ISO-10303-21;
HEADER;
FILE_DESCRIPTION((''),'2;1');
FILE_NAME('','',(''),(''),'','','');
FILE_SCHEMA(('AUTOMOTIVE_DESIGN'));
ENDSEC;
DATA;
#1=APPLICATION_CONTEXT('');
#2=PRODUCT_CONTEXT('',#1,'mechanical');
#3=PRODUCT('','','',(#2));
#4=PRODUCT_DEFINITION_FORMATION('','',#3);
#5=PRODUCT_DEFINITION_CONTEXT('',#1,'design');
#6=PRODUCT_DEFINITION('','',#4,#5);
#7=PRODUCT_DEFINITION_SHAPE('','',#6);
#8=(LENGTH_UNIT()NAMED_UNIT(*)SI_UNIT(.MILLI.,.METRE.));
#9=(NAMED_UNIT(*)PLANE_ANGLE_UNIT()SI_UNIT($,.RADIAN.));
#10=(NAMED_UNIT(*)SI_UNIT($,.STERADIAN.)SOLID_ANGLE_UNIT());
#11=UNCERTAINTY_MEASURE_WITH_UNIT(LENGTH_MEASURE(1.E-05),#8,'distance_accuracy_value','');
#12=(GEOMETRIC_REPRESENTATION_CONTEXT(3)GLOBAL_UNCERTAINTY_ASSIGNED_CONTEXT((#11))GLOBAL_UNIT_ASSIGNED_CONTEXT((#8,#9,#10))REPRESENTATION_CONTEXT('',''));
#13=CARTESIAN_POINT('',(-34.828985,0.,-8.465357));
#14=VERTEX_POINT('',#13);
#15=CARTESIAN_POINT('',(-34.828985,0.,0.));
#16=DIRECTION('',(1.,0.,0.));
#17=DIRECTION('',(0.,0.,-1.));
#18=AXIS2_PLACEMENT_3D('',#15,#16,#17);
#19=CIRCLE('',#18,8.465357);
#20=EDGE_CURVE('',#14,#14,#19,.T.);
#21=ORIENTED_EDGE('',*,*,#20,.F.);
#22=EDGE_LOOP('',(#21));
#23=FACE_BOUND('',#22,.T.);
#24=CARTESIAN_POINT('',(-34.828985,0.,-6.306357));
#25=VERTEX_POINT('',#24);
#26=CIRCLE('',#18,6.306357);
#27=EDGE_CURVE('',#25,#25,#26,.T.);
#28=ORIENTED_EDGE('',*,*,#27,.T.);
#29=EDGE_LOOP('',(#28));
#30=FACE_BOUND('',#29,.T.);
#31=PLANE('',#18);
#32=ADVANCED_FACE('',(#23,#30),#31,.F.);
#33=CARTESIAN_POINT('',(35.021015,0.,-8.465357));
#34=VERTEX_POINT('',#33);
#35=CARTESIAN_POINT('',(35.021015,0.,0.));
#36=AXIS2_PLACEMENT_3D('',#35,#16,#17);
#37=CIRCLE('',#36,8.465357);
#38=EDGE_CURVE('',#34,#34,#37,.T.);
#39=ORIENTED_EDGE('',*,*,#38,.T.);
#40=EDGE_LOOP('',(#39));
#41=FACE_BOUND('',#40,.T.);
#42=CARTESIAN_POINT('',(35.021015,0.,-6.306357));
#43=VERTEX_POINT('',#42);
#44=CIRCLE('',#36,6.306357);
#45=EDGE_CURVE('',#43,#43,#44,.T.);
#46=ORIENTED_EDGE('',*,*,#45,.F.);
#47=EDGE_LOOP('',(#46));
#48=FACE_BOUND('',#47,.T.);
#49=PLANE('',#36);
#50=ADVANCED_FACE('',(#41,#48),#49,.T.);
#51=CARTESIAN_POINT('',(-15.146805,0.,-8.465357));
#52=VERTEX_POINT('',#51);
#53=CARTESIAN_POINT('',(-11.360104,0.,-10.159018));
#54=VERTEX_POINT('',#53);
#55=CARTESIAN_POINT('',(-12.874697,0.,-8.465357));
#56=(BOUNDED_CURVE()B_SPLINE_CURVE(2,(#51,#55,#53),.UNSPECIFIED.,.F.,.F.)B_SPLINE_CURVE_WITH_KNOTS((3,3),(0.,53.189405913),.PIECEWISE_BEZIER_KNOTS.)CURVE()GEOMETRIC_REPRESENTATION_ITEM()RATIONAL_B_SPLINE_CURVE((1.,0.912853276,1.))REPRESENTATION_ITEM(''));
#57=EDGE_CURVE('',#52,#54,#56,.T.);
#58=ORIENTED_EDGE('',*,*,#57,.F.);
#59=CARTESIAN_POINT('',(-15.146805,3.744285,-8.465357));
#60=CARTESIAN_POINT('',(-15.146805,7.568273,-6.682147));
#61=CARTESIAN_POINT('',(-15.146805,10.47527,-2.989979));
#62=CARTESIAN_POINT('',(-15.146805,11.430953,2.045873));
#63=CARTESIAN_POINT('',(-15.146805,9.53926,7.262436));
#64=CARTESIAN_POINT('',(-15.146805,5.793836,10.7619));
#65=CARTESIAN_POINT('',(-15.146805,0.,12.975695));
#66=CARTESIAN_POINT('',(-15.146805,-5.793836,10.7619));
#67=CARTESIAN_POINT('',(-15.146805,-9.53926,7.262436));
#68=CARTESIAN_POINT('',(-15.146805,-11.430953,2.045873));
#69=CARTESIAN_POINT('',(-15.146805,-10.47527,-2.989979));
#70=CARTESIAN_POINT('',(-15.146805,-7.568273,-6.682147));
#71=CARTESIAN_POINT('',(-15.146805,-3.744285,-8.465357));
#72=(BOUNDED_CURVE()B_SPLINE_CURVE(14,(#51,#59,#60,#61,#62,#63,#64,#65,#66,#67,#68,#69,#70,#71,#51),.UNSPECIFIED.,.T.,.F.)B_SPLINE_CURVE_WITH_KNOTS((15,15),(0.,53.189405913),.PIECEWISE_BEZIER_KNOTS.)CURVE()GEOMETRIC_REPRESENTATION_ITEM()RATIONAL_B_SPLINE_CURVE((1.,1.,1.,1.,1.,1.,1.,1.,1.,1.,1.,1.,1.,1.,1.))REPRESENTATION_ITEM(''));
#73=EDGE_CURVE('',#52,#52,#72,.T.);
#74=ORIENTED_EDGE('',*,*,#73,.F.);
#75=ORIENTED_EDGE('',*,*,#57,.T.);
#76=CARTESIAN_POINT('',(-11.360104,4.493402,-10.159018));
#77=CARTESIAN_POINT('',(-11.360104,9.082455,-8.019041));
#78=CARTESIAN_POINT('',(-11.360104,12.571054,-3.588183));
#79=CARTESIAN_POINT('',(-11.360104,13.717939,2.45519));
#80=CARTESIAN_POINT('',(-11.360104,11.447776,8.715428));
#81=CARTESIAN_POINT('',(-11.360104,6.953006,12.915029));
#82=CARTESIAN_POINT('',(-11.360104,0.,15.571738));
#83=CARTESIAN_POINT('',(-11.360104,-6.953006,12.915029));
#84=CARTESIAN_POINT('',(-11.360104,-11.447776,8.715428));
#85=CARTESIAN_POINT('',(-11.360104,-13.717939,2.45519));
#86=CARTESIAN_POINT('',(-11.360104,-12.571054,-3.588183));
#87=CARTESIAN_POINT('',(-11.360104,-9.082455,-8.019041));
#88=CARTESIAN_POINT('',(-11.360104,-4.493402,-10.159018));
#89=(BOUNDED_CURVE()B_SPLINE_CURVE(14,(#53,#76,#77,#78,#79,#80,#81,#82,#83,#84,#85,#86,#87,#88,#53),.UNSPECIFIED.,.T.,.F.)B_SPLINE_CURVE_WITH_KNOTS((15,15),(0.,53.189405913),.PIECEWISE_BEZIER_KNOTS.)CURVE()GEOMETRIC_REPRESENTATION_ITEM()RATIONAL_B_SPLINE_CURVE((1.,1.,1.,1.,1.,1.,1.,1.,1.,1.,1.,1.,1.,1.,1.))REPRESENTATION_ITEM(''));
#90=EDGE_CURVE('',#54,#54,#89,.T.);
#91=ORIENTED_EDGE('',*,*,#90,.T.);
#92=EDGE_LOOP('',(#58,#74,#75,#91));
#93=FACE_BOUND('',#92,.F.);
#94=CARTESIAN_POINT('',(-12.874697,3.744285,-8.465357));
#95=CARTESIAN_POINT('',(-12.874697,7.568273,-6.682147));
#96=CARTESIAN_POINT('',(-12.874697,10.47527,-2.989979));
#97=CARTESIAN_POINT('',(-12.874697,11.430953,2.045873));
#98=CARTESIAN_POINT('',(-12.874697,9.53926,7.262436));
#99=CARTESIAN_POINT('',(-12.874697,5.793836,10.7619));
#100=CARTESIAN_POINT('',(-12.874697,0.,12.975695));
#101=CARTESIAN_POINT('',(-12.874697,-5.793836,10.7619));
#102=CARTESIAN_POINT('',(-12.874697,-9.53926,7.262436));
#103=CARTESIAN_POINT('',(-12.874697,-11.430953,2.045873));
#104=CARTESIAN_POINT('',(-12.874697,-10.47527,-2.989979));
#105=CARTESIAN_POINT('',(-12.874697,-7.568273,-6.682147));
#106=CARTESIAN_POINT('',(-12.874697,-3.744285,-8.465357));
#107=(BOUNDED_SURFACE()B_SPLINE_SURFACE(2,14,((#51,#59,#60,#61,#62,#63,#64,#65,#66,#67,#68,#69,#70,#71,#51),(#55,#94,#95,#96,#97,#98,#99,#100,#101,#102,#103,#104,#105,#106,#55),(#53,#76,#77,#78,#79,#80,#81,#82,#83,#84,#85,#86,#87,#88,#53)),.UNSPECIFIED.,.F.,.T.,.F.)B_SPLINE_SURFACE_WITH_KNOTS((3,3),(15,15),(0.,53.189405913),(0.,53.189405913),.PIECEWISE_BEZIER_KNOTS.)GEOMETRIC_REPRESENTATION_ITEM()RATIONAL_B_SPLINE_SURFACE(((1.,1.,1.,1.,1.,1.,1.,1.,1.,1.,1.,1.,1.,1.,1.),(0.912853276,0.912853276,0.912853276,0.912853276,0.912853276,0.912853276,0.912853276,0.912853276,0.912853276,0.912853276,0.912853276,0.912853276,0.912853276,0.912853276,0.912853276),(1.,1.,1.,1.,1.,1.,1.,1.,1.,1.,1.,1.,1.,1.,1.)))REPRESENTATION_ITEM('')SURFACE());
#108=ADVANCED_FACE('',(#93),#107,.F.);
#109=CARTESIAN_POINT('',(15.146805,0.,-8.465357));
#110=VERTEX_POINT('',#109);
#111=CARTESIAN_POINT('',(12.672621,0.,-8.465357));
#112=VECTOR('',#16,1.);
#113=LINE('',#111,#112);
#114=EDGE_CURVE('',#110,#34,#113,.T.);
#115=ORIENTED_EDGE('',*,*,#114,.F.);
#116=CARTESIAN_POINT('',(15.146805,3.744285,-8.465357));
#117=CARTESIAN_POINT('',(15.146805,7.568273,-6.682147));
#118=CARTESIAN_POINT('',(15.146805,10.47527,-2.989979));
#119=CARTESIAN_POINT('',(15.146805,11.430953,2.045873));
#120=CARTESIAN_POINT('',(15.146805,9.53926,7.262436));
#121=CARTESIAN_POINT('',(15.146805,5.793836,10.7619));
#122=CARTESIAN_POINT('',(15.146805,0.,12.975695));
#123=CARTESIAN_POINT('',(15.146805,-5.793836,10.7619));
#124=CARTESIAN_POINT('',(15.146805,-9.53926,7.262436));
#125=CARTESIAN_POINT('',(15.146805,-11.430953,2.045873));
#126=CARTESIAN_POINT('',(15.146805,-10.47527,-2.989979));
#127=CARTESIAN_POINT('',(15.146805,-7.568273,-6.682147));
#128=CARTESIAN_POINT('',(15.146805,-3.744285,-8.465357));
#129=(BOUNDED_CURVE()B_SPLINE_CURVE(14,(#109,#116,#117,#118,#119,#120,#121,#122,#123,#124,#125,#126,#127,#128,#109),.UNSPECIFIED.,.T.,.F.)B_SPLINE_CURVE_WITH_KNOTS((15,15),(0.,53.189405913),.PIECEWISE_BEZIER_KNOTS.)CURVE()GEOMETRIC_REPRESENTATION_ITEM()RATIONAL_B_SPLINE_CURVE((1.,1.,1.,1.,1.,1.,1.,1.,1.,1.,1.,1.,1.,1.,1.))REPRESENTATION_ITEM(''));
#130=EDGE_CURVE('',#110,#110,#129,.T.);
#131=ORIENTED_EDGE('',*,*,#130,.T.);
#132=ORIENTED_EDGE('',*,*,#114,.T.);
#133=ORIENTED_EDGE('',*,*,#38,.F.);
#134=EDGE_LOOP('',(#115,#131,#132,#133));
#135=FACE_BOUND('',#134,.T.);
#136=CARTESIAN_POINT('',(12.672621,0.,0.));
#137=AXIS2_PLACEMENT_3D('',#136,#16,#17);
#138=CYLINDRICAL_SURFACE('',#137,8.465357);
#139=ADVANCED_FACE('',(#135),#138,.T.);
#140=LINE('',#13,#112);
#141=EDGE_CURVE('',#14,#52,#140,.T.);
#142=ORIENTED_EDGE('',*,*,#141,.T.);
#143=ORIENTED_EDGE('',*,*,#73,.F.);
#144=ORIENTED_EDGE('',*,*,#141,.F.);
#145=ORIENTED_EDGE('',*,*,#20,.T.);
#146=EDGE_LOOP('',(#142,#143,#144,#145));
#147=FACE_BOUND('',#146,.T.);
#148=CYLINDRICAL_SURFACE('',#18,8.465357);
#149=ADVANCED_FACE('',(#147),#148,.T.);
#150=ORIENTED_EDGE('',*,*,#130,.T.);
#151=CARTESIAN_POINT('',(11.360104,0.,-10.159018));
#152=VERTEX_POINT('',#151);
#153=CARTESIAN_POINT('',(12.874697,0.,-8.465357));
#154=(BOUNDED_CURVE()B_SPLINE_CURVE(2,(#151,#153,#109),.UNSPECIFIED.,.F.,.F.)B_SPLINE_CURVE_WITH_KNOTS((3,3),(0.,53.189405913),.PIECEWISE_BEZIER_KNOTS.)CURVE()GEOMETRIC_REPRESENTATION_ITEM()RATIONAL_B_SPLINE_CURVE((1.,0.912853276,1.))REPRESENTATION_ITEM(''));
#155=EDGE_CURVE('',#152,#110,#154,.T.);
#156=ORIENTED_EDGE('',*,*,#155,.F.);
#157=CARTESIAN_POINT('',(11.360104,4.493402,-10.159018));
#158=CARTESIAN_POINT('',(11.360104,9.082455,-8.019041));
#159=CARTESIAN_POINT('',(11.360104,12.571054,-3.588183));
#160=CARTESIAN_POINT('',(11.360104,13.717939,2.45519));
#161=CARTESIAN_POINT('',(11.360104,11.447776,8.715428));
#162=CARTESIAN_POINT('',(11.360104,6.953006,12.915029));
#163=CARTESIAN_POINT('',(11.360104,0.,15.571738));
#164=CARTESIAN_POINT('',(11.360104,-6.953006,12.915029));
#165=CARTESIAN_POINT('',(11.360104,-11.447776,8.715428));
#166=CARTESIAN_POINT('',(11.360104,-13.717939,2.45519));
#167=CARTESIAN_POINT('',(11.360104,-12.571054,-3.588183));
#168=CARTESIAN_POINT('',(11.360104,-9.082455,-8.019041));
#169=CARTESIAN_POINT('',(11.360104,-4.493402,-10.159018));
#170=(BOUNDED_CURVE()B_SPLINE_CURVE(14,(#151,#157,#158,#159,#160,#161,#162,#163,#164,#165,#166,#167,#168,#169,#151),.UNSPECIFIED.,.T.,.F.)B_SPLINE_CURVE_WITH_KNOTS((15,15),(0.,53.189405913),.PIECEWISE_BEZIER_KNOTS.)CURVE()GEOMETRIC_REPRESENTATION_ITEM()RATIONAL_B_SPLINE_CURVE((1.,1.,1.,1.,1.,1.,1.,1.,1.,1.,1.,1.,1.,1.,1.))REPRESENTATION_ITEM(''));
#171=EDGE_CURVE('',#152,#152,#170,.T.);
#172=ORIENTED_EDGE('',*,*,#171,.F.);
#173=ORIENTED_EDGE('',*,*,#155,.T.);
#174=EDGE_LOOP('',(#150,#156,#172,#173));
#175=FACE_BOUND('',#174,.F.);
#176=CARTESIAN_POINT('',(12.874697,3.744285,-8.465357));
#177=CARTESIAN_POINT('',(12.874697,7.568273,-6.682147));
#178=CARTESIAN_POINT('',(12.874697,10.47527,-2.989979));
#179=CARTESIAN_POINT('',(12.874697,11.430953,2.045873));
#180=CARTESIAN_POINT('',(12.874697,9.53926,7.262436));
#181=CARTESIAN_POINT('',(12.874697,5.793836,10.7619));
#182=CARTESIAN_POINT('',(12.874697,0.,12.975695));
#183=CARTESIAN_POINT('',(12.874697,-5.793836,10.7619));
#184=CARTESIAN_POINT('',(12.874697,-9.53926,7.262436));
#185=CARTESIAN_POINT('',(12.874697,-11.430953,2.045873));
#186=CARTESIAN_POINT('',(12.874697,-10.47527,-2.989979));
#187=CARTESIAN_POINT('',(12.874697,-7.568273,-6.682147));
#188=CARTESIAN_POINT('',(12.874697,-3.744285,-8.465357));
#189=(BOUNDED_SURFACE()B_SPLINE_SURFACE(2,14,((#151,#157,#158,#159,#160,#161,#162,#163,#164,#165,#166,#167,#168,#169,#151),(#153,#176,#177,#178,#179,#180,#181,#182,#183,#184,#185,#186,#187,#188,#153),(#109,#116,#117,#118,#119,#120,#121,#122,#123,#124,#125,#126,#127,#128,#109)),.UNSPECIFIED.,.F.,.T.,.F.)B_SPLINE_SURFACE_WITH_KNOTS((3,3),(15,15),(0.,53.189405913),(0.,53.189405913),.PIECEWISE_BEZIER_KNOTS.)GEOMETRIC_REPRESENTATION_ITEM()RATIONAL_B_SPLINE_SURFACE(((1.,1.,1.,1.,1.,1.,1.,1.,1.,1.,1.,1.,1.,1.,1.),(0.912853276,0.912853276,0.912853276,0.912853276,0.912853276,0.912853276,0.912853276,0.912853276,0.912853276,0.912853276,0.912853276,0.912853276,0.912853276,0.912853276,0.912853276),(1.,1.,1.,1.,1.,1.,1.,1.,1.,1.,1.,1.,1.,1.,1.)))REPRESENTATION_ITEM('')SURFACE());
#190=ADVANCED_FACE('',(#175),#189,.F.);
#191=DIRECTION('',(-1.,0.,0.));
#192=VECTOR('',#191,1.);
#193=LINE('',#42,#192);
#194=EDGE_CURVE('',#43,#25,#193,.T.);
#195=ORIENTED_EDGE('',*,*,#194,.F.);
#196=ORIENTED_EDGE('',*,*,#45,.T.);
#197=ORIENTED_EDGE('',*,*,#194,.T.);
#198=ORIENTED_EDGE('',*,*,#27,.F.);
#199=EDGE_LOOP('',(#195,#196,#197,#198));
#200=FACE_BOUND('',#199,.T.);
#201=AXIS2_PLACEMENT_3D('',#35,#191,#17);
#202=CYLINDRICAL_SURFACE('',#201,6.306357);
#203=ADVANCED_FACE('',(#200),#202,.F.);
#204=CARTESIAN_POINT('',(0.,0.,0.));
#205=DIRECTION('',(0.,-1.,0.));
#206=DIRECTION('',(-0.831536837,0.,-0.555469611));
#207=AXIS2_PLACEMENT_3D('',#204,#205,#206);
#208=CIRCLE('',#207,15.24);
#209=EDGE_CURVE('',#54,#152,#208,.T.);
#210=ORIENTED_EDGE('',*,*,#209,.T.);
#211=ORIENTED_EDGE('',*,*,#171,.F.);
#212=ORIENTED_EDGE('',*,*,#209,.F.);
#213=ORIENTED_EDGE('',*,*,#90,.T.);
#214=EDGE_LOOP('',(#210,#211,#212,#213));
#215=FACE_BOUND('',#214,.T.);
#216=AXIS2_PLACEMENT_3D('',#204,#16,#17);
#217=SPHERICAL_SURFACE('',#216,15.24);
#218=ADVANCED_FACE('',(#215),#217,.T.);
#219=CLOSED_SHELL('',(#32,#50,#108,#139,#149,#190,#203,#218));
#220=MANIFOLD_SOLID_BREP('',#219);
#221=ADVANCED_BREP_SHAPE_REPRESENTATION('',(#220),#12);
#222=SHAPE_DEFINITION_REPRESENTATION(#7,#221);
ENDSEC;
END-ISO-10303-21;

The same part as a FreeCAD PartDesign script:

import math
import FreeCAD as App
import Part
import Sketcher
from FreeCAD import Vector
Q = App.Units.Quantity


def edges_at(feature, points):
    """Names of the edges that pass closest to the given points."""
    edges = feature.Shape.Edges
    near = lambda p: min(range(len(edges)), key=lambda i: edges[i].distToShape(Part.Vertex(*p))[0])
    return sorted({f"Edge{near(p) + 1}" for p in points})

doc = App.newDocument("Part")
params = doc.addObject("Spreadsheet::Sheet", "Params")
for row, (alias, value) in enumerate([
    ("sketch1_radius", "0.6 in"),
    ("sketch1_width", "2.75 in"),
    ("sketch1_height", "0.085 in"),
    ("revolution_angle", "360 deg"),
    ("fillet_radius", "0.2 in"),
], start=1):
    params.set(f"A{row}", alias)
    params.set(f"B{row}", "=" + value)
    params.setAlias(f"B{row}", alias)

body = doc.addObject("PartDesign::Body", "Body")

# Sketch on XZ plane
sketch1 = doc.addObject("Sketcher::SketchObject", "Sketch")
body.addObject(sketch1)
sketch1.AttachmentSupport = (doc.XZ_Plane, [""])
sketch1.MapMode = "FlatFace"
sketch1.addGeometry(Part.LineSegment(Vector(-34.8, -6.3, 0), Vector(-34.8, -8.5, 0)), False)
sketch1.addGeometry(Part.LineSegment(Vector(-34.8, -8.5, 0), Vector(-12.7, -8.5, 0)), False)
sketch1.addGeometry(Part.ArcOfCircle(Part.Circle(Vector(0, 0, 0), Vector(0, 0, 1), 15.2), math.radians(-146), math.radians(-34)), False)
sketch1.addGeometry(Part.LineSegment(Vector(12.7, -8.5, 0), Vector(35, -8.5, 0)), False)
sketch1.addGeometry(Part.LineSegment(Vector(35, -8.5, 0), Vector(35, -6.3, 0)), False)
sketch1.addGeometry(Part.LineSegment(Vector(35, -6.3, 0), Vector(-34.8, -6.3, 0)), False)
sketch1.addConstraint(Sketcher.Constraint("Coincident", 0, 2, 1, 1))
sketch1.addConstraint(Sketcher.Constraint("Coincident", 1, 2, 2, 1))
sketch1.addConstraint(Sketcher.Constraint("Coincident", 2, 2, 3, 1))
sketch1.addConstraint(Sketcher.Constraint("Coincident", 3, 2, 4, 1))
sketch1.addConstraint(Sketcher.Constraint("Coincident", 4, 2, 5, 1))
sketch1.addConstraint(Sketcher.Constraint("Coincident", 5, 2, 0, 1))
sketch1.addConstraint(Sketcher.Constraint("Vertical", 0))
sketch1.addConstraint(Sketcher.Constraint("Horizontal", 1))
sketch1.addConstraint(Sketcher.Constraint("Horizontal", 3))
sketch1.addConstraint(Sketcher.Constraint("Vertical", 4))
sketch1.addConstraint(Sketcher.Constraint("Horizontal", 5))
sketch1.addConstraint(Sketcher.Constraint("Coincident", 2, 3, -1, 1))
sketch1.addConstraint(Sketcher.Constraint("Horizontal", 1, 2, 2, 2))
sketch1.addConstraint(Sketcher.Constraint("Radius", 2, Q("0.6 in")))
sketch1.addConstraint(Sketcher.Constraint("DistanceX", 5, 2, 5, 1, Q("2.75 in")))
sketch1.addConstraint(Sketcher.Constraint("DistanceY", 0, 2, 0, 1, Q("0.085 in")))
sketch1.addConstraint(Sketcher.Constraint("DistanceX", 1, 1, 1, 2, 22.156364))
sketch1.addConstraint(Sketcher.Constraint("DistanceX", 3, 1, 3, 2, 22.348393))
sketch1.setExpression("Constraints[13]", "Params.sketch1_radius")
sketch1.setExpression("Constraints[14]", "Params.sketch1_width")
sketch1.setExpression("Constraints[15]", "Params.sketch1_height")
revolution = doc.addObject("PartDesign::Revolution", "Revolution")
body.addObject(revolution)
revolution.Profile = sketch1
revolution.ReferenceAxis = (sketch1, ["H_Axis"])
revolution.setExpression("Angle", "Params.revolution_angle")
doc.recompute()

fillet = doc.addObject("PartDesign::Fillet", "Fillet")
body.addObject(fillet)
fillet.Base = (revolution, edges_at(revolution, [
    (-12.673, 0, 8.465),
    (-23.751, 0, -8.465),
    (0, 0, -15.24),
    (12.673, 0, 8.465),
    (23.847, 0, -8.465),
]))
fillet.setExpression("Radius", "Params.fillet_radius")

doc.recompute()
